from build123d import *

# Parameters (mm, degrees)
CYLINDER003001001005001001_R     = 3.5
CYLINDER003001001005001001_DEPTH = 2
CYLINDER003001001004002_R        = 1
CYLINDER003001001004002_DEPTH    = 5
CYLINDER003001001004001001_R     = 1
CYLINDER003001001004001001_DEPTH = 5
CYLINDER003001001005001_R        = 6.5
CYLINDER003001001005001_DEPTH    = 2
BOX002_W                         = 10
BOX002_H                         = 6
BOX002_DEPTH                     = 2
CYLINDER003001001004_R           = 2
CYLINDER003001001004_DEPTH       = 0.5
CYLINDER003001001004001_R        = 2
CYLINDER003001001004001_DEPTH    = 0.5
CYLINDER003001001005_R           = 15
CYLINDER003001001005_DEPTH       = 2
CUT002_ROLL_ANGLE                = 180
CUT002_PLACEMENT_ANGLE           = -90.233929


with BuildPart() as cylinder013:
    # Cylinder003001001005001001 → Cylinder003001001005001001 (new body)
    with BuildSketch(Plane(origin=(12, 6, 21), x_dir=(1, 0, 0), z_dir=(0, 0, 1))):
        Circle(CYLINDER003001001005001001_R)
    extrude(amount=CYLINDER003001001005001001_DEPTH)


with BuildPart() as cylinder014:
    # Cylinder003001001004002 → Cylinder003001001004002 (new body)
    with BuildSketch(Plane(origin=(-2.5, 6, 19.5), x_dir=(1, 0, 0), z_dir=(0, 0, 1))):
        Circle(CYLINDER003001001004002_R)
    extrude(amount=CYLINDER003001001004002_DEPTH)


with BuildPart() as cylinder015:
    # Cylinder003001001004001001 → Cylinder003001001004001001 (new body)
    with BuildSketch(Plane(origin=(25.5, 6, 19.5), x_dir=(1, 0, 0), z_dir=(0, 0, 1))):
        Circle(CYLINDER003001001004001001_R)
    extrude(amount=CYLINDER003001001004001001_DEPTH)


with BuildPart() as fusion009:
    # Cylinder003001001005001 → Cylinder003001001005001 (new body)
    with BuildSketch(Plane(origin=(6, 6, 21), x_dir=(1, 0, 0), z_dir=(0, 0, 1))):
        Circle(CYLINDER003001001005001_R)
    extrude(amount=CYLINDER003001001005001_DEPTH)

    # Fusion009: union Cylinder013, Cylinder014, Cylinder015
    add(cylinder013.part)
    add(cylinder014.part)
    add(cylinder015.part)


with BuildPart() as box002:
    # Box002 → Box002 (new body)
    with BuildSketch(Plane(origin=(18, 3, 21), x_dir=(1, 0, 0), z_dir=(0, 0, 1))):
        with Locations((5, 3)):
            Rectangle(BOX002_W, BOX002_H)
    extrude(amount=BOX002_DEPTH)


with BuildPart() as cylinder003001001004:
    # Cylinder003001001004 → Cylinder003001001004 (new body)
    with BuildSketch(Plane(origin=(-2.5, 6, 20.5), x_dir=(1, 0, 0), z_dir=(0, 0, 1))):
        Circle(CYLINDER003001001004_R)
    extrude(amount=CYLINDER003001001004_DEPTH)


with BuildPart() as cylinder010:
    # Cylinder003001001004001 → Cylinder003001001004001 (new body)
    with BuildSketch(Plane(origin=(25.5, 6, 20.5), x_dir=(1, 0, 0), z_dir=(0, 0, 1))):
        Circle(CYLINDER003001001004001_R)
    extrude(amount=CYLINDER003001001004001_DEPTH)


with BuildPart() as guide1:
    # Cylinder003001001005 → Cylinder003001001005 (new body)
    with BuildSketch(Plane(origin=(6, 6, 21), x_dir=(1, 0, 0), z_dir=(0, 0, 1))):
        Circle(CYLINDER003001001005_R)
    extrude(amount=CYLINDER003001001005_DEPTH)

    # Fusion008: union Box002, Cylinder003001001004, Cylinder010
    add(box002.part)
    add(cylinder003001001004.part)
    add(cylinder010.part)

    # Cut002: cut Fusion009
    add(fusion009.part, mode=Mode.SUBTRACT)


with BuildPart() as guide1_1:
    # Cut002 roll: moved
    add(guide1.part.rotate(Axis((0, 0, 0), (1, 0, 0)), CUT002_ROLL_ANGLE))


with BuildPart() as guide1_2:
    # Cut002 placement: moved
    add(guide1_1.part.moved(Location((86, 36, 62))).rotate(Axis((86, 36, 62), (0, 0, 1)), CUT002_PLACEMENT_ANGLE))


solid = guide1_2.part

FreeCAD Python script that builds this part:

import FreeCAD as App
import Part
import Sketcher


def add_polygon(sketch, points):
    """Adds a closed chain of lines whose ends are joined by coincident constraints."""
    first, n = sketch.GeometryCount, len(points)
    for a, b in zip(points, points[1:] + points[:1]):
        sketch.addGeometry(Part.LineSegment(App.Vector(*a, 0), App.Vector(*b, 0)), False)
    for i in range(n):
        sketch.addConstraint(Sketcher.Constraint("Coincident", first + i, 2, first + (i + 1) % n, 1))

doc = App.newDocument("Part")
body = doc.addObject("PartDesign::Body", "Body")

# Sketch on XY plane
sketch1 = body.newObject("Sketcher::SketchObject", "Sketch")
sketch1.AttachmentSupport = (doc.getObject("XY_Plane"), [""])
sketch1.MapMode = "FlatFace"
sketch1.AttachmentOffset = App.Placement(App.Vector(0, 0, 21), App.Rotation())
sketch1.addGeometry(Part.Circle(App.Vector(12, 6, 0), App.Vector(0, 0, 1), 3.5), False)
sketch1.addConstraint([
    Sketcher.Constraint("Diameter", 0, 7.0),
    Sketcher.Constraint("DistanceX", -1, 1, 0, 3, 12.0),
    Sketcher.Constraint("DistanceY", -1, 1, 0, 3, 6.0),
])
pad1 = body.newObject("PartDesign::Pad", "Pad")
pad1.Profile = sketch1
pad1.Length = 2
body2 = doc.addObject("PartDesign::Body", "Body001")

# Sketch on XY plane
sketch2 = body2.newObject("Sketcher::SketchObject", "Sketch001")
sketch2.AttachmentSupport = (doc.getObject("XY_Plane001"), [""])
sketch2.MapMode = "FlatFace"
sketch2.AttachmentOffset = App.Placement(App.Vector(0, 0, 19.5), App.Rotation())
sketch2.addGeometry(Part.Circle(App.Vector(-2.5, 6, 0), App.Vector(0, 0, 1), 1), False)
sketch2.addConstraint([
    Sketcher.Constraint("Diameter", 0, 2.0),
    Sketcher.Constraint("DistanceY", -1, 1, 0, 3, 6.0),
    Sketcher.Constraint("DistanceX", 0, 3, -1, 1, 2.5),
])
pad2 = body2.newObject("PartDesign::Pad", "Pad001")
pad2.Profile = sketch2
pad2.Length = 5
body3 = doc.addObject("PartDesign::Body", "Body002")

# Sketch on XY plane
sketch3 = body3.newObject("Sketcher::SketchObject", "Sketch002")
sketch3.AttachmentSupport = (doc.getObject("XY_Plane002"), [""])
sketch3.MapMode = "FlatFace"
sketch3.AttachmentOffset = App.Placement(App.Vector(0, 0, 19.5), App.Rotation())
sketch3.addGeometry(Part.Circle(App.Vector(25.5, 6, 0), App.Vector(0, 0, 1), 1), False)
sketch3.addConstraint([
    Sketcher.Constraint("Diameter", 0, 2.0),
    Sketcher.Constraint("DistanceY", -1, 1, 0, 3, 6.0),
    Sketcher.Constraint("DistanceX", -1, 1, 0, 3, 25.5),
])
pad3 = body3.newObject("PartDesign::Pad", "Pad002")
pad3.Profile = sketch3
pad3.Length = 5
body4 = doc.addObject("PartDesign::Body", "Body003")
body4.AllowCompound = True

# Sketch on XY plane
sketch4 = body4.newObject("Sketcher::SketchObject", "Sketch003")
sketch4.AttachmentSupport = (doc.getObject("XY_Plane003"), [""])
sketch4.MapMode = "FlatFace"
sketch4.AttachmentOffset = App.Placement(App.Vector(0, 0, 21), App.Rotation())
sketch4.addGeometry(Part.Circle(App.Vector(6, 6, 0), App.Vector(0, 0, 1), 6.5), False)
sketch4.addConstraint([
    Sketcher.Constraint("Diameter", 0, 13.0),
    Sketcher.Constraint("DistanceX", -1, 1, 0, 3, 6.0),
    Sketcher.Constraint("DistanceY", -1, 1, 0, 3, 6.0),
])
pad4 = body4.newObject("PartDesign::Pad", "Pad003")
pad4.Profile = sketch4
pad4.Length = 2
doc.recompute()

boolean = body4.newObject("PartDesign::Boolean", "Boolean")
boolean.Type = "Fuse"
boolean.addObjects([body])
doc.recompute()

boolean2 = body4.newObject("PartDesign::Boolean", "Boolean001")
boolean2.Type = "Fuse"
boolean2.addObjects([body2])
doc.recompute()

boolean3 = body4.newObject("PartDesign::Boolean", "Boolean002")
boolean3.Type = "Fuse"
boolean3.addObjects([body3])
body5 = doc.addObject("PartDesign::Body", "Body004")

# Sketch on XY plane
sketch5 = body5.newObject("Sketcher::SketchObject", "Sketch004")
sketch5.AttachmentSupport = (doc.getObject("XY_Plane004"), [""])
sketch5.MapMode = "FlatFace"
sketch5.AttachmentOffset = App.Placement(App.Vector(0, 0, 21), App.Rotation())
add_polygon(sketch5, [(18, 9), (18, 3), (28, 3), (28, 9)])  # lines 0-3
sketch5.addConstraint([
    Sketcher.Constraint("Vertical", 0),
    Sketcher.Constraint("Horizontal", 1),
    Sketcher.Constraint("Vertical", 2),
    Sketcher.Constraint("Horizontal", 3),
    Sketcher.Constraint("DistanceX", 1, 1, 1, 2, 10.0),
    Sketcher.Constraint("DistanceY", 0, 2, 0, 1, 6.0),
    Sketcher.Constraint("DistanceX", -1, 1, 0, 2, 18.0),
    Sketcher.Constraint("DistanceY", -1, 1, 0, 2, 3.0),
])
pad5 = body5.newObject("PartDesign::Pad", "Pad004")
pad5.Profile = sketch5
pad5.Length = 2
body6 = doc.addObject("PartDesign::Body", "Body005")

# Sketch on XY plane
sketch6 = body6.newObject("Sketcher::SketchObject", "Sketch005")
sketch6.AttachmentSupport = (doc.getObject("XY_Plane005"), [""])
sketch6.MapMode = "FlatFace"
sketch6.AttachmentOffset = App.Placement(App.Vector(0, 0, 20.5), App.Rotation())
sketch6.addGeometry(Part.Circle(App.Vector(-2.5, 6, 0), App.Vector(0, 0, 1), 2), False)
sketch6.addConstraint([
    Sketcher.Constraint("Diameter", 0, 4.0),
    Sketcher.Constraint("DistanceY", -1, 1, 0, 3, 6.0),
    Sketcher.Constraint("DistanceX", 0, 3, -1, 1, 2.5),
])
pad6 = body6.newObject("PartDesign::Pad", "Pad005")
pad6.Profile = sketch6
pad6.Length = 0.5
body7 = doc.addObject("PartDesign::Body", "Body006")

# Sketch on XY plane
sketch7 = body7.newObject("Sketcher::SketchObject", "Sketch006")
sketch7.AttachmentSupport = (doc.getObject("XY_Plane006"), [""])
sketch7.MapMode = "FlatFace"
sketch7.AttachmentOffset = App.Placement(App.Vector(0, 0, 20.5), App.Rotation())
sketch7.addGeometry(Part.Circle(App.Vector(25.5, 6, 0), App.Vector(0, 0, 1), 2), False)
sketch7.addConstraint([
    Sketcher.Constraint("Diameter", 0, 4.0),
    Sketcher.Constraint("DistanceY", -1, 1, 0, 3, 6.0),
    Sketcher.Constraint("DistanceX", -1, 1, 0, 3, 25.5),
])
pad7 = body7.newObject("PartDesign::Pad", "Pad006")
pad7.Profile = sketch7
pad7.Length = 0.5
body8 = doc.addObject("PartDesign::Body", "Body007")

# Sketch on XY plane
sketch8 = body8.newObject("Sketcher::SketchObject", "Sketch007")
sketch8.AttachmentSupport = (doc.getObject("XY_Plane007"), [""])
sketch8.MapMode = "FlatFace"
sketch8.AttachmentOffset = App.Placement(App.Vector(0, 0, 21), App.Rotation())
sketch8.addGeometry(Part.Circle(App.Vector(6, 6, 0), App.Vector(0, 0, 1), 15), False)
sketch8.addConstraint([
    Sketcher.Constraint("Diameter", 0, 30.0),
    Sketcher.Constraint("DistanceX", -1, 1, 0, 3, 6.0),
    Sketcher.Constraint("DistanceY", -1, 1, 0, 3, 6.0),
])
pad8 = body8.newObject("PartDesign::Pad", "Pad007")
pad8.Profile = sketch8
pad8.Length = 2
doc.recompute()

boolean4 = body8.newObject("PartDesign::Boolean", "Boolean003")
boolean4.Type = "Fuse"
boolean4.addObjects([body5])
doc.recompute()

boolean5 = body8.newObject("PartDesign::Boolean", "Boolean004")
boolean5.Type = "Fuse"
boolean5.addObjects([body6])
doc.recompute()

boolean6 = body8.newObject("PartDesign::Boolean", "Boolean005")
boolean6.Type = "Fuse"
boolean6.addObjects([body7])
doc.recompute()

boolean7 = body8.newObject("PartDesign::Boolean", "Boolean006")
boolean7.Type = "Cut"
boolean7.addObjects([body4])
body9 = doc.addObject("PartDesign::Body", "Body008")
doc.recompute()

body8.Placement = App.Placement(App.Vector(0, 0, 0), App.Rotation(App.Vector(1, 0, 0), 180))
boolean8 = body9.newObject("PartDesign::Boolean", "Boolean007")
boolean8.Type = "Fuse"
boolean8.addObjects([body8])
body10 = doc.addObject("PartDesign::Body", "Body009")
doc.recompute()

body9.Placement = App.Placement(App.Vector(86, 36, 62), App.Rotation(App.Vector(0, 0, 1), 269.766071))
boolean9 = body10.newObject("PartDesign::Boolean", "Boolean008")
boolean9.Type = "Fuse"
boolean9.addObjects([body9])

doc.recompute()
